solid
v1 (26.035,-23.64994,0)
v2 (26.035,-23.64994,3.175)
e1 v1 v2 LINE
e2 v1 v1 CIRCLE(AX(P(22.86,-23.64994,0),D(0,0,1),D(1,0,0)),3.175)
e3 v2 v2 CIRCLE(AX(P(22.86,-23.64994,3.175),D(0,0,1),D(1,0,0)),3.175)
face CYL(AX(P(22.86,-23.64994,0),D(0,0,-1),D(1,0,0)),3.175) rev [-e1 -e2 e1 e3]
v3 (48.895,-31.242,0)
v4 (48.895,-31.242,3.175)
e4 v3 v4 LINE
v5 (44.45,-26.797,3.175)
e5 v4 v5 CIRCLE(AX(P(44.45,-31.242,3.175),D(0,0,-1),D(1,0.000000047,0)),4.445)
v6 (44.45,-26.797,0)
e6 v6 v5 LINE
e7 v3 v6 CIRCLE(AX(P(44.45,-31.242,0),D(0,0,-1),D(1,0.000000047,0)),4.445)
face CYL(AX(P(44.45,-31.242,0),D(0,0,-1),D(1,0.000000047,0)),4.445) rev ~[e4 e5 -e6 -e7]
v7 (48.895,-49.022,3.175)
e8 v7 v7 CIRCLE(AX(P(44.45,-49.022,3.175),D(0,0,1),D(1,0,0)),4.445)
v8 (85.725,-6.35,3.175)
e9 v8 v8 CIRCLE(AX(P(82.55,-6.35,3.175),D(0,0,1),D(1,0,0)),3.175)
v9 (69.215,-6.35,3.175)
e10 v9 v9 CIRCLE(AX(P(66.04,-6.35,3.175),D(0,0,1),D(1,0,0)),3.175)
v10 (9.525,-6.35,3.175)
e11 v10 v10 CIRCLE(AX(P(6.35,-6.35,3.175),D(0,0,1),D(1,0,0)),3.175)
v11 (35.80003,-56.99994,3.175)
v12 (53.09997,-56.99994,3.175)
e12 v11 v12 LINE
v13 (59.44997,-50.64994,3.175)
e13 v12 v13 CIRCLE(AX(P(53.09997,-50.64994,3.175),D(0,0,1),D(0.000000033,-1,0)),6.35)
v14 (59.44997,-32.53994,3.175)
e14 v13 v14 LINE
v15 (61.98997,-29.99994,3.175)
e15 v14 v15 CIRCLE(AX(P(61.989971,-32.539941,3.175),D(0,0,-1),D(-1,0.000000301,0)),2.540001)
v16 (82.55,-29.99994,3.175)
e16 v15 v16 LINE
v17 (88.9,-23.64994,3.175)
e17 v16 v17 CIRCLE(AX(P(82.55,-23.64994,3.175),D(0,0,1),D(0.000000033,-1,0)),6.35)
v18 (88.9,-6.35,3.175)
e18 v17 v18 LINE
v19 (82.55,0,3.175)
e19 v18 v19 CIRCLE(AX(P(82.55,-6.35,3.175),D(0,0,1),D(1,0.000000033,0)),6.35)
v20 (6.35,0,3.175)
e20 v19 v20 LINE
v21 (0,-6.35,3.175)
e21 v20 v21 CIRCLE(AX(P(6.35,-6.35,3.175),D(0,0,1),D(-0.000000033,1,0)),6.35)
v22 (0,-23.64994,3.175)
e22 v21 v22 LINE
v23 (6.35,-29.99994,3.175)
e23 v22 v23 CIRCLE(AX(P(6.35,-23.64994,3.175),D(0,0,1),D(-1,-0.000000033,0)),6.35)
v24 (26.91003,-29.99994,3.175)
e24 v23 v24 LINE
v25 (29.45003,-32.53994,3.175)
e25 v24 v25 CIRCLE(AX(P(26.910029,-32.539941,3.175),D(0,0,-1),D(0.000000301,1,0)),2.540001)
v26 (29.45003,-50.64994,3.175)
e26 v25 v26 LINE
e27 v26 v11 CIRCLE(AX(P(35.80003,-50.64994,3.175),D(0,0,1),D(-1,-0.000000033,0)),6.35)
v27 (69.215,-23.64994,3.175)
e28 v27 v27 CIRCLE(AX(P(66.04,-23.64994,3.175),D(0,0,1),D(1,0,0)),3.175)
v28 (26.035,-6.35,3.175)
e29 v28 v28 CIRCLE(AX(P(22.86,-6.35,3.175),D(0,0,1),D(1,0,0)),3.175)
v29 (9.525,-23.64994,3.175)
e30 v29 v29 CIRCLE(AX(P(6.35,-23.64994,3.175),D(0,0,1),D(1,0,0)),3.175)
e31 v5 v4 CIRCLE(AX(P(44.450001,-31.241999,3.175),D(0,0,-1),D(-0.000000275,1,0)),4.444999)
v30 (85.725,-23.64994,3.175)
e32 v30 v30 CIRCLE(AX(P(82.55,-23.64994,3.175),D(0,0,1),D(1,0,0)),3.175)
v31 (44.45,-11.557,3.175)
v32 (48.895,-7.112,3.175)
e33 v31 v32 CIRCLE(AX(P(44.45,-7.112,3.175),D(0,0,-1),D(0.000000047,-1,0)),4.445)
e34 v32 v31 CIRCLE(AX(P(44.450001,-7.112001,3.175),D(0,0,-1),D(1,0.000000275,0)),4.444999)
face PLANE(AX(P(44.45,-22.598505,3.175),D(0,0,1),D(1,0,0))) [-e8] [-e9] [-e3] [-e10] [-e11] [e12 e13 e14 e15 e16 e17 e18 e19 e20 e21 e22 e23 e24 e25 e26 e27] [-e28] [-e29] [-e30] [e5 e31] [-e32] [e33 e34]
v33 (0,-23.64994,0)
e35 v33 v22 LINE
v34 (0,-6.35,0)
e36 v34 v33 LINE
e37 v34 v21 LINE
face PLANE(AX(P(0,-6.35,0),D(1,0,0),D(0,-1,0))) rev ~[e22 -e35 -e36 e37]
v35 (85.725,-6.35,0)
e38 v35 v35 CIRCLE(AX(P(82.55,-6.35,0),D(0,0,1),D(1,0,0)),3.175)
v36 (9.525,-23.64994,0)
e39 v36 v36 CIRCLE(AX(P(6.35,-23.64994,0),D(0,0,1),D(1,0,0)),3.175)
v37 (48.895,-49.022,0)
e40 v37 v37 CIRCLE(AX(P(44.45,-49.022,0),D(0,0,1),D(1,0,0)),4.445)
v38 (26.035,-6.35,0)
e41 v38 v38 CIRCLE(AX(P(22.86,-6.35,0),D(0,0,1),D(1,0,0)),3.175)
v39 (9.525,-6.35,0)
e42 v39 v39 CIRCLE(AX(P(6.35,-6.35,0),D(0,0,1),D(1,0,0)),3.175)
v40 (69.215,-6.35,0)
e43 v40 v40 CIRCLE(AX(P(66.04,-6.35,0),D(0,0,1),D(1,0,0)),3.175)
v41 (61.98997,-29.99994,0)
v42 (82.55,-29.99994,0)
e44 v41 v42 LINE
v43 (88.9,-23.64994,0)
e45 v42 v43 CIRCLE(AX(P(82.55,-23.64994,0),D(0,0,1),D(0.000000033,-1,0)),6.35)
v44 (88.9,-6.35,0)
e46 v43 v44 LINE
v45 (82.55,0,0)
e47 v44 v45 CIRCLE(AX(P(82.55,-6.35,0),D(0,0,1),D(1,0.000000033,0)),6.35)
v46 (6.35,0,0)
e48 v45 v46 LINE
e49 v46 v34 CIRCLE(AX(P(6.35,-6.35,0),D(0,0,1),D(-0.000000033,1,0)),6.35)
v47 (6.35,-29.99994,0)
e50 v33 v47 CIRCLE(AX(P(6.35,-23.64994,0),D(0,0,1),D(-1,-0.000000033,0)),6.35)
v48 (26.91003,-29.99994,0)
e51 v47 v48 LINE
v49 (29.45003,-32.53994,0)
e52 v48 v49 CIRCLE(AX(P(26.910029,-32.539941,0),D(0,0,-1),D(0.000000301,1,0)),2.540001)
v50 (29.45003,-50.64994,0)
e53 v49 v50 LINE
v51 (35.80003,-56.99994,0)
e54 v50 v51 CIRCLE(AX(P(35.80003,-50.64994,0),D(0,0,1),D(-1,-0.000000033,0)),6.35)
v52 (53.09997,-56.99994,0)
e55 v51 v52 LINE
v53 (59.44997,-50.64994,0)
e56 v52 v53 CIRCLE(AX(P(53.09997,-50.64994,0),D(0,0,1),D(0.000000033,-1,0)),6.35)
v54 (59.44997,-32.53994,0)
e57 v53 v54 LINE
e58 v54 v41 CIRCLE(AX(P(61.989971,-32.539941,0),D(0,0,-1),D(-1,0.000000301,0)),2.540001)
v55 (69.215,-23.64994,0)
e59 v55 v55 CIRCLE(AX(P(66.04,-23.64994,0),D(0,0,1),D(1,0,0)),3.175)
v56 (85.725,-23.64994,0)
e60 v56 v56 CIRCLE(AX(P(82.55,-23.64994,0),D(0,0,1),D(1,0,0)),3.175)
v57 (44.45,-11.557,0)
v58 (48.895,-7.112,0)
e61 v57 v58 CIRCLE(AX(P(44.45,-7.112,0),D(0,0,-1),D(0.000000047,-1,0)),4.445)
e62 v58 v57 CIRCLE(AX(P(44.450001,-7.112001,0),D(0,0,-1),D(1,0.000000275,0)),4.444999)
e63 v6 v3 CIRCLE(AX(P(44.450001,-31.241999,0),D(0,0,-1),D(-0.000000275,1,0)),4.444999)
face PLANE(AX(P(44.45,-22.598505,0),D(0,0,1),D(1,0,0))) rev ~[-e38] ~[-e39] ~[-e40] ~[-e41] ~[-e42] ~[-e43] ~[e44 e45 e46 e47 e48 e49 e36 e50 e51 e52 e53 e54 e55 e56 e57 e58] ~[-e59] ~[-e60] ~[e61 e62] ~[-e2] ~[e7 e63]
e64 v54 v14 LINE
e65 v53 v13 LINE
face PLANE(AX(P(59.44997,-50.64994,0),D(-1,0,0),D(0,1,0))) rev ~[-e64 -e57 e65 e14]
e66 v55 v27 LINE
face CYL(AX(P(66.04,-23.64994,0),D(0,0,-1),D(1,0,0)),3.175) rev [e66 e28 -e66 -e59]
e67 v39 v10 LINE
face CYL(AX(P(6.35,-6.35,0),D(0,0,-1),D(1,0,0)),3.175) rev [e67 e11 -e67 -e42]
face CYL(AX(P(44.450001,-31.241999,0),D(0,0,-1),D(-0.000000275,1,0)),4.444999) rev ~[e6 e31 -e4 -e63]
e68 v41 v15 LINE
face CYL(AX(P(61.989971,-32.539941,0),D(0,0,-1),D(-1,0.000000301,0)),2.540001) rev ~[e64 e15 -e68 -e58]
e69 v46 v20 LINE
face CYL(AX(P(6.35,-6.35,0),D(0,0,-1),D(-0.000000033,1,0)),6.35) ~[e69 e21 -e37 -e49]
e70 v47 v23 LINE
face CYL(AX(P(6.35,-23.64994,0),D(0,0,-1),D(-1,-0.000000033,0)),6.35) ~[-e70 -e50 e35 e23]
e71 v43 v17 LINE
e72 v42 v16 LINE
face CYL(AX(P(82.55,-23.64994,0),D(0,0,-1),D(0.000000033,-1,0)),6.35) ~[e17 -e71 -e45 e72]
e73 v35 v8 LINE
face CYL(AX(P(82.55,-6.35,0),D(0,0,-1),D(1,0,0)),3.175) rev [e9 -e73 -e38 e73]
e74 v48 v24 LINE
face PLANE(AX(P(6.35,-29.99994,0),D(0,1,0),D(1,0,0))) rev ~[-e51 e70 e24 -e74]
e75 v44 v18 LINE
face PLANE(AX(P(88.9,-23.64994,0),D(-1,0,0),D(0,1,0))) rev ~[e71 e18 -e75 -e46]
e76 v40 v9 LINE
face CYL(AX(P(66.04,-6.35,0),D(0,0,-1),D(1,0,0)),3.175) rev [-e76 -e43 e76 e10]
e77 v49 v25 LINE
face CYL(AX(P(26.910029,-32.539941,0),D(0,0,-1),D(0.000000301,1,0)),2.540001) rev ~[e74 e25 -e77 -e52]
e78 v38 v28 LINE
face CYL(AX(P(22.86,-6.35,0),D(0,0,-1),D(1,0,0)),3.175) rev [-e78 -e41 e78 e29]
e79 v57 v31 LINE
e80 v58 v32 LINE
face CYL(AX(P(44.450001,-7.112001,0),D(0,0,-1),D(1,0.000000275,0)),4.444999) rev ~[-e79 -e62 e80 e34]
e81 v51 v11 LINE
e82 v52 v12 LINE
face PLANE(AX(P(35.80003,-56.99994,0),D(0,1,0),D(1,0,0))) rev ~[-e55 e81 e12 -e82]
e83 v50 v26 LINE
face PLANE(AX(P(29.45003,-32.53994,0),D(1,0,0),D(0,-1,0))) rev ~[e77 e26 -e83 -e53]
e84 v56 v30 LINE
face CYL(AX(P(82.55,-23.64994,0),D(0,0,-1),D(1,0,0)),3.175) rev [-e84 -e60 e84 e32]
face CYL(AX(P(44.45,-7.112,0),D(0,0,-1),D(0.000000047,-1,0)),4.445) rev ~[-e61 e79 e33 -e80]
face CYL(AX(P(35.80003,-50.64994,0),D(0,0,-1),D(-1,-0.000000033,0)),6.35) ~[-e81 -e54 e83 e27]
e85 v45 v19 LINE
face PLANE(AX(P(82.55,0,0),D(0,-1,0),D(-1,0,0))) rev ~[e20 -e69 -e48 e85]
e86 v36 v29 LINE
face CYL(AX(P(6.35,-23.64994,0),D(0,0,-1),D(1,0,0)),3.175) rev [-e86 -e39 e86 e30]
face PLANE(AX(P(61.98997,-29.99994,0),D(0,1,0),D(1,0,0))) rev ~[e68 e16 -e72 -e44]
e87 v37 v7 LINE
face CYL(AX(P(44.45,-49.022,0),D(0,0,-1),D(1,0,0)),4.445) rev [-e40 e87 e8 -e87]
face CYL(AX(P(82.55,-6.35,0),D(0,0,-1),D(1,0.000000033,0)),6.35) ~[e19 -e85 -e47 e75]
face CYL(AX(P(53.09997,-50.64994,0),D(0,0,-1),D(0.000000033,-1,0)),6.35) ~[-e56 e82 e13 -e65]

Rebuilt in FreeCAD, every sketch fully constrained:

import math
import FreeCAD as App
import Part
import Sketcher
from FreeCAD import Vector
Q = App.Units.Quantity

doc = App.newDocument("Part")
body = doc.addObject("PartDesign::Body", "Body")

# Sketch on XY plane
sketch1 = doc.addObject("Sketcher::SketchObject", "Sketch")
body.addObject(sketch1)
sketch1.AttachmentSupport = (doc.XY_Plane, [""])
sketch1.MapMode = "FlatFace"
sketch1.addGeometry(Part.LineSegment(Vector(82.5, 0, 0), Vector(6.3, 0, 0)), False)
sketch1.addGeometry(Part.ArcOfCircle(Part.Circle(Vector(6.4, -6.4, 0), Vector(0, 0, 1), 6.4), math.radians(90), math.radians(180)), False)
sketch1.addGeometry(Part.LineSegment(Vector(0, -6.3, 0), Vector(0, -23.6, 0)), False)
sketch1.addGeometry(Part.ArcOfCircle(Part.Circle(Vector(6.4, -23.6, 0), Vector(0, 0, 1), 6.4), math.radians(-180), math.radians(-90)), False)
sketch1.addGeometry(Part.LineSegment(Vector(6.3, -30, 0), Vector(26.9, -30, 0)), False)
sketch1.addGeometry(Part.ArcOfCircle(Part.Circle(Vector(26.9, -32.5, 0), Vector(0, 0, 1), 2.5), math.radians(0), math.radians(90)), False)
sketch1.addGeometry(Part.LineSegment(Vector(29.5, -32.5, 0), Vector(29.5, -50.6, 0)), False)
sketch1.addGeometry(Part.ArcOfCircle(Part.Circle(Vector(35.8, -50.6, 0), Vector(0, 0, 1), 6.4), math.radians(-180), math.radians(-90)), False)
sketch1.addGeometry(Part.LineSegment(Vector(35.8, -57, 0), Vector(53.1, -57, 0)), False)
sketch1.addGeometry(Part.ArcOfCircle(Part.Circle(Vector(53.1, -50.6, 0), Vector(0, 0, 1), 6.4), math.radians(-90), math.radians(0)), False)
sketch1.addGeometry(Part.LineSegment(Vector(59.4, -50.6, 0), Vector(59.4, -32.5, 0)), False)
sketch1.addGeometry(Part.ArcOfCircle(Part.Circle(Vector(62, -32.5, 0), Vector(0, 0, 1), 2.5), math.radians(90), math.radians(180)), False)
sketch1.addGeometry(Part.LineSegment(Vector(62, -30, 0), Vector(82.5, -30, 0)), False)
sketch1.addGeometry(Part.ArcOfCircle(Part.Circle(Vector(82.5, -23.6, 0), Vector(0, 0, 1), 6.4), math.radians(-90), math.radians(0)), False)
sketch1.addGeometry(Part.LineSegment(Vector(88.9, -23.6, 0), Vector(88.9, -6.3, 0)), False)
sketch1.addGeometry(Part.ArcOfCircle(Part.Circle(Vector(82.5, -6.4, 0), Vector(0, 0, 1), 6.4), math.radians(0), math.radians(90)), False)
sketch1.addGeometry(Part.ArcOfCircle(Part.Circle(Vector(44.4, -31.2, 0), Vector(0, 0, 1), 4.4), math.radians(90), math.radians(360)), False)
sketch1.addGeometry(Part.ArcOfCircle(Part.Circle(Vector(44.5, -31.2, 0), Vector(0, 0, 1), 4.4), math.radians(0), math.radians(90)), False)
sketch1.addGeometry(Part.Circle(Vector(44.5, -49, 0), Vector(0, 0, 1), 4.4), False)
sketch1.addGeometry(Part.Circle(Vector(6.3, -23.6, 0), Vector(0, 0, 1), 3.2), False)
sketch1.addGeometry(Part.Circle(Vector(22.9, -23.6, 0), Vector(0, 0, 1), 3.2), False)
sketch1.addGeometry(Part.Circle(Vector(6.3, -6.3, 0), Vector(0, 0, 1), 3.2), False)
sketch1.addGeometry(Part.Circle(Vector(22.9, -6.3, 0), Vector(0, 0, 1), 3.2), False)
sketch1.addGeometry(Part.ArcOfCircle(Part.Circle(Vector(44.4, -7.1, 0), Vector(0, 0, 1), 4.4), math.radians(0), math.radians(270)), False)
sketch1.addGeometry(Part.ArcOfCircle(Part.Circle(Vector(44.5, -7.1, 0), Vector(0, 0, 1), 4.4), math.radians(-90), math.radians(0)), False)
sketch1.addGeometry(Part.Circle(Vector(66, -23.6, 0), Vector(0, 0, 1), 3.2), False)
sketch1.addGeometry(Part.Circle(Vector(82.5, -23.6, 0), Vector(0, 0, 1), 3.2), False)
sketch1.addGeometry(Part.Circle(Vector(66, -6.3, 0), Vector(0, 0, 1), 3.2), False)
sketch1.addGeometry(Part.Circle(Vector(82.5, -6.3, 0), Vector(0, 0, 1), 3.2), False)
sketch1.addConstraint(Sketcher.Constraint("Tangent", 0, 2, 1, 1))
sketch1.addConstraint(Sketcher.Constraint("Tangent", 1, 2, 2, 1))
sketch1.addConstraint(Sketcher.Constraint("Tangent", 2, 2, 3, 1))
sketch1.addConstraint(Sketcher.Constraint("Tangent", 3, 2, 4, 1))
sketch1.addConstraint(Sketcher.Constraint("Tangent", 4, 2, 5, 2))
sketch1.addConstraint(Sketcher.Constraint("Tangent", 5, 1, 6, 1))
sketch1.addConstraint(Sketcher.Constraint("Tangent", 6, 2, 7, 1))
sketch1.addConstraint(Sketcher.Constraint("Tangent", 7, 2, 8, 1))
sketch1.addConstraint(Sketcher.Constraint("Tangent", 8, 2, 9, 1))
sketch1.addConstraint(Sketcher.Constraint("Tangent", 9, 2, 10, 1))
sketch1.addConstraint(Sketcher.Constraint("Tangent", 10, 2, 11, 2))
sketch1.addConstraint(Sketcher.Constraint("Tangent", 11, 1, 12, 1))
sketch1.addConstraint(Sketcher.Constraint("Tangent", 12, 2, 13, 1))
sketch1.addConstraint(Sketcher.Constraint("Tangent", 13, 2, 14, 1))
sketch1.addConstraint(Sketcher.Constraint("Tangent", 14, 2, 15, 1))
sketch1.addConstraint(Sketcher.Constraint("Tangent", 15, 2, 0, 1))
sketch1.addConstraint(Sketcher.Constraint("Tangent", 16, 1, 17, 2))
sketch1.addConstraint(Sketcher.Constraint("Coincident", 17, 1, 16, 2))
sketch1.addConstraint(Sketcher.Constraint("Tangent", 23, 1, 24, 2))
sketch1.addConstraint(Sketcher.Constraint("Coincident", 24, 1, 23, 2))
sketch1.addConstraint(Sketcher.Constraint("Horizontal", 0))
sketch1.addConstraint(Sketcher.Constraint("Vertical", 2))
sketch1.addConstraint(Sketcher.Constraint("Horizontal", 4))
sketch1.addConstraint(Sketcher.Constraint("Vertical", 6))
sketch1.addConstraint(Sketcher.Constraint("Horizontal", 8))
sketch1.addConstraint(Sketcher.Constraint("Vertical", 10))
sketch1.addConstraint(Sketcher.Constraint("Horizontal", 12))
sketch1.addConstraint(Sketcher.Constraint("Vertical", 14))
sketch1.addConstraint(Sketcher.Constraint("Coincident", 19, 3, 3, 3))
sketch1.addConstraint(Sketcher.Constraint("Coincident", 21, 3, 1, 3))
sketch1.addConstraint(Sketcher.Constraint("Coincident", 26, 3, 13, 3))
sketch1.addConstraint(Sketcher.Constraint("Coincident", 28, 3, 15, 3))
sketch1.addConstraint(Sketcher.Constraint("Equal", 1, 3))
sketch1.addConstraint(Sketcher.Constraint("Equal", 3, 7))
sketch1.addConstraint(Sketcher.Constraint("Equal", 7, 9))
sketch1.addConstraint(Sketcher.Constraint("Equal", 5, 11))
sketch1.addConstraint(Sketcher.Constraint("Equal", 9, 13))
sketch1.addConstraint(Sketcher.Constraint("Equal", 13, 15))
sketch1.addConstraint(Sketcher.Constraint("Equal", 17, 18))
sketch1.addConstraint(Sketcher.Constraint("Equal", 19, 20))
sketch1.addConstraint(Sketcher.Constraint("Equal", 20, 21))
sketch1.addConstraint(Sketcher.Constraint("Equal", 21, 22))
sketch1.addConstraint(Sketcher.Constraint("Equal", 18, 23))
sketch1.addConstraint(Sketcher.Constraint("Equal", 22, 25))
sketch1.addConstraint(Sketcher.Constraint("Equal", 25, 26))
sketch1.addConstraint(Sketcher.Constraint("Equal", 26, 27))
sketch1.addConstraint(Sketcher.Constraint("Equal", 27, 28))
sketch1.addConstraint(Sketcher.Constraint("PointOnObject", 0, 2, -1))
sketch1.addConstraint(Sketcher.Constraint("PointOnObject", 1, 2, -2))
sketch1.addConstraint(Sketcher.Constraint("Horizontal", 5, 3, 11, 3))
sketch1.addConstraint(Sketcher.Constraint("Horizontal", 19, 3, 20, 3))
sketch1.addConstraint(Sketcher.Constraint("Horizontal", 21, 3, 22, 3))
sketch1.addConstraint(Sketcher.Constraint("Horizontal", 20, 3, 25, 3))
sketch1.addConstraint(Sketcher.Constraint("Horizontal", 22, 3, 27, 3))
sketch1.addConstraint(Sketcher.Constraint("Horizontal", 16, 3, 17, 1))
sketch1.addConstraint(Sketcher.Constraint("Horizontal", 24, 3, 23, 1))
sketch1.addConstraint(Sketcher.Constraint("Vertical", 17, 3, 18, 3))
sketch1.addConstraint(Sketcher.Constraint("Vertical", 20, 3, 22, 3))
sketch1.addConstraint(Sketcher.Constraint("Vertical", 18, 3, 23, 3))
sketch1.addConstraint(Sketcher.Constraint("Vertical", 25, 3, 27, 3))
sketch1.addConstraint(Sketcher.Constraint("Vertical", 24, 3, 16, 1))
sketch1.addConstraint(Sketcher.Constraint("Vertical", 16, 1, 24, 1))
sketch1.addConstraint(Sketcher.Constraint("Equal", 4, 12))
sketch1.addConstraint(Sketcher.Constraint("Equal", 8, 2))
sketch1.addConstraint(Sketcher.Constraint("Radius", 5, Q("0.1 in")))
sketch1.addConstraint(Sketcher.Constraint("Diameter", 18, Q("0.35 in")))
sketch1.addConstraint(Sketcher.Constraint("Diameter", 19, Q("0.25 in")))
sketch1.addConstraint(Sketcher.Constraint("DistanceX", 0, 2, 0, 1, Q("3 in")))
sketch1.addConstraint(Sketcher.Constraint("Radius", 1, Q("0.25 in")))
sketch1.addConstraint(Sketcher.Constraint("DistanceX", -1, 1, 20, 3, Q("0.9 in")))
sketch1.addConstraint(Sketcher.Constraint("DistanceX", -1, 1, 25, 3, Q("2.6 in")))
sketch1.addConstraint(Sketcher.Constraint("DistanceX", 3, 3, 16, 3, Q("1.5 in")))
sketch1.addConstraint(Sketcher.Constraint("DistanceY", 18, 3, 16, 3, Q("0.7 in")))
sketch1.addConstraint(Sketcher.Constraint("DistanceY", 16, 1, 24, 1, Q("0.6 in")))
sketch1.addConstraint(Sketcher.Constraint("DistanceY", 16, 3, -1, 1, Q("1.23 in")))
sketch1.addConstraint(Sketcher.Constraint("DistanceX", 8, 1, 8, 2, Q("0.6811 in")))
sketch1.addConstraint(Sketcher.Constraint("DistanceY", 6, 2, 6, 1, 18.11))
pad1 = doc.addObject("PartDesign::Pad", "Pad")
body.addObject(pad1)
pad1.Profile = sketch1
pad1.Length = Q("0.125 in")

doc.recompute()
